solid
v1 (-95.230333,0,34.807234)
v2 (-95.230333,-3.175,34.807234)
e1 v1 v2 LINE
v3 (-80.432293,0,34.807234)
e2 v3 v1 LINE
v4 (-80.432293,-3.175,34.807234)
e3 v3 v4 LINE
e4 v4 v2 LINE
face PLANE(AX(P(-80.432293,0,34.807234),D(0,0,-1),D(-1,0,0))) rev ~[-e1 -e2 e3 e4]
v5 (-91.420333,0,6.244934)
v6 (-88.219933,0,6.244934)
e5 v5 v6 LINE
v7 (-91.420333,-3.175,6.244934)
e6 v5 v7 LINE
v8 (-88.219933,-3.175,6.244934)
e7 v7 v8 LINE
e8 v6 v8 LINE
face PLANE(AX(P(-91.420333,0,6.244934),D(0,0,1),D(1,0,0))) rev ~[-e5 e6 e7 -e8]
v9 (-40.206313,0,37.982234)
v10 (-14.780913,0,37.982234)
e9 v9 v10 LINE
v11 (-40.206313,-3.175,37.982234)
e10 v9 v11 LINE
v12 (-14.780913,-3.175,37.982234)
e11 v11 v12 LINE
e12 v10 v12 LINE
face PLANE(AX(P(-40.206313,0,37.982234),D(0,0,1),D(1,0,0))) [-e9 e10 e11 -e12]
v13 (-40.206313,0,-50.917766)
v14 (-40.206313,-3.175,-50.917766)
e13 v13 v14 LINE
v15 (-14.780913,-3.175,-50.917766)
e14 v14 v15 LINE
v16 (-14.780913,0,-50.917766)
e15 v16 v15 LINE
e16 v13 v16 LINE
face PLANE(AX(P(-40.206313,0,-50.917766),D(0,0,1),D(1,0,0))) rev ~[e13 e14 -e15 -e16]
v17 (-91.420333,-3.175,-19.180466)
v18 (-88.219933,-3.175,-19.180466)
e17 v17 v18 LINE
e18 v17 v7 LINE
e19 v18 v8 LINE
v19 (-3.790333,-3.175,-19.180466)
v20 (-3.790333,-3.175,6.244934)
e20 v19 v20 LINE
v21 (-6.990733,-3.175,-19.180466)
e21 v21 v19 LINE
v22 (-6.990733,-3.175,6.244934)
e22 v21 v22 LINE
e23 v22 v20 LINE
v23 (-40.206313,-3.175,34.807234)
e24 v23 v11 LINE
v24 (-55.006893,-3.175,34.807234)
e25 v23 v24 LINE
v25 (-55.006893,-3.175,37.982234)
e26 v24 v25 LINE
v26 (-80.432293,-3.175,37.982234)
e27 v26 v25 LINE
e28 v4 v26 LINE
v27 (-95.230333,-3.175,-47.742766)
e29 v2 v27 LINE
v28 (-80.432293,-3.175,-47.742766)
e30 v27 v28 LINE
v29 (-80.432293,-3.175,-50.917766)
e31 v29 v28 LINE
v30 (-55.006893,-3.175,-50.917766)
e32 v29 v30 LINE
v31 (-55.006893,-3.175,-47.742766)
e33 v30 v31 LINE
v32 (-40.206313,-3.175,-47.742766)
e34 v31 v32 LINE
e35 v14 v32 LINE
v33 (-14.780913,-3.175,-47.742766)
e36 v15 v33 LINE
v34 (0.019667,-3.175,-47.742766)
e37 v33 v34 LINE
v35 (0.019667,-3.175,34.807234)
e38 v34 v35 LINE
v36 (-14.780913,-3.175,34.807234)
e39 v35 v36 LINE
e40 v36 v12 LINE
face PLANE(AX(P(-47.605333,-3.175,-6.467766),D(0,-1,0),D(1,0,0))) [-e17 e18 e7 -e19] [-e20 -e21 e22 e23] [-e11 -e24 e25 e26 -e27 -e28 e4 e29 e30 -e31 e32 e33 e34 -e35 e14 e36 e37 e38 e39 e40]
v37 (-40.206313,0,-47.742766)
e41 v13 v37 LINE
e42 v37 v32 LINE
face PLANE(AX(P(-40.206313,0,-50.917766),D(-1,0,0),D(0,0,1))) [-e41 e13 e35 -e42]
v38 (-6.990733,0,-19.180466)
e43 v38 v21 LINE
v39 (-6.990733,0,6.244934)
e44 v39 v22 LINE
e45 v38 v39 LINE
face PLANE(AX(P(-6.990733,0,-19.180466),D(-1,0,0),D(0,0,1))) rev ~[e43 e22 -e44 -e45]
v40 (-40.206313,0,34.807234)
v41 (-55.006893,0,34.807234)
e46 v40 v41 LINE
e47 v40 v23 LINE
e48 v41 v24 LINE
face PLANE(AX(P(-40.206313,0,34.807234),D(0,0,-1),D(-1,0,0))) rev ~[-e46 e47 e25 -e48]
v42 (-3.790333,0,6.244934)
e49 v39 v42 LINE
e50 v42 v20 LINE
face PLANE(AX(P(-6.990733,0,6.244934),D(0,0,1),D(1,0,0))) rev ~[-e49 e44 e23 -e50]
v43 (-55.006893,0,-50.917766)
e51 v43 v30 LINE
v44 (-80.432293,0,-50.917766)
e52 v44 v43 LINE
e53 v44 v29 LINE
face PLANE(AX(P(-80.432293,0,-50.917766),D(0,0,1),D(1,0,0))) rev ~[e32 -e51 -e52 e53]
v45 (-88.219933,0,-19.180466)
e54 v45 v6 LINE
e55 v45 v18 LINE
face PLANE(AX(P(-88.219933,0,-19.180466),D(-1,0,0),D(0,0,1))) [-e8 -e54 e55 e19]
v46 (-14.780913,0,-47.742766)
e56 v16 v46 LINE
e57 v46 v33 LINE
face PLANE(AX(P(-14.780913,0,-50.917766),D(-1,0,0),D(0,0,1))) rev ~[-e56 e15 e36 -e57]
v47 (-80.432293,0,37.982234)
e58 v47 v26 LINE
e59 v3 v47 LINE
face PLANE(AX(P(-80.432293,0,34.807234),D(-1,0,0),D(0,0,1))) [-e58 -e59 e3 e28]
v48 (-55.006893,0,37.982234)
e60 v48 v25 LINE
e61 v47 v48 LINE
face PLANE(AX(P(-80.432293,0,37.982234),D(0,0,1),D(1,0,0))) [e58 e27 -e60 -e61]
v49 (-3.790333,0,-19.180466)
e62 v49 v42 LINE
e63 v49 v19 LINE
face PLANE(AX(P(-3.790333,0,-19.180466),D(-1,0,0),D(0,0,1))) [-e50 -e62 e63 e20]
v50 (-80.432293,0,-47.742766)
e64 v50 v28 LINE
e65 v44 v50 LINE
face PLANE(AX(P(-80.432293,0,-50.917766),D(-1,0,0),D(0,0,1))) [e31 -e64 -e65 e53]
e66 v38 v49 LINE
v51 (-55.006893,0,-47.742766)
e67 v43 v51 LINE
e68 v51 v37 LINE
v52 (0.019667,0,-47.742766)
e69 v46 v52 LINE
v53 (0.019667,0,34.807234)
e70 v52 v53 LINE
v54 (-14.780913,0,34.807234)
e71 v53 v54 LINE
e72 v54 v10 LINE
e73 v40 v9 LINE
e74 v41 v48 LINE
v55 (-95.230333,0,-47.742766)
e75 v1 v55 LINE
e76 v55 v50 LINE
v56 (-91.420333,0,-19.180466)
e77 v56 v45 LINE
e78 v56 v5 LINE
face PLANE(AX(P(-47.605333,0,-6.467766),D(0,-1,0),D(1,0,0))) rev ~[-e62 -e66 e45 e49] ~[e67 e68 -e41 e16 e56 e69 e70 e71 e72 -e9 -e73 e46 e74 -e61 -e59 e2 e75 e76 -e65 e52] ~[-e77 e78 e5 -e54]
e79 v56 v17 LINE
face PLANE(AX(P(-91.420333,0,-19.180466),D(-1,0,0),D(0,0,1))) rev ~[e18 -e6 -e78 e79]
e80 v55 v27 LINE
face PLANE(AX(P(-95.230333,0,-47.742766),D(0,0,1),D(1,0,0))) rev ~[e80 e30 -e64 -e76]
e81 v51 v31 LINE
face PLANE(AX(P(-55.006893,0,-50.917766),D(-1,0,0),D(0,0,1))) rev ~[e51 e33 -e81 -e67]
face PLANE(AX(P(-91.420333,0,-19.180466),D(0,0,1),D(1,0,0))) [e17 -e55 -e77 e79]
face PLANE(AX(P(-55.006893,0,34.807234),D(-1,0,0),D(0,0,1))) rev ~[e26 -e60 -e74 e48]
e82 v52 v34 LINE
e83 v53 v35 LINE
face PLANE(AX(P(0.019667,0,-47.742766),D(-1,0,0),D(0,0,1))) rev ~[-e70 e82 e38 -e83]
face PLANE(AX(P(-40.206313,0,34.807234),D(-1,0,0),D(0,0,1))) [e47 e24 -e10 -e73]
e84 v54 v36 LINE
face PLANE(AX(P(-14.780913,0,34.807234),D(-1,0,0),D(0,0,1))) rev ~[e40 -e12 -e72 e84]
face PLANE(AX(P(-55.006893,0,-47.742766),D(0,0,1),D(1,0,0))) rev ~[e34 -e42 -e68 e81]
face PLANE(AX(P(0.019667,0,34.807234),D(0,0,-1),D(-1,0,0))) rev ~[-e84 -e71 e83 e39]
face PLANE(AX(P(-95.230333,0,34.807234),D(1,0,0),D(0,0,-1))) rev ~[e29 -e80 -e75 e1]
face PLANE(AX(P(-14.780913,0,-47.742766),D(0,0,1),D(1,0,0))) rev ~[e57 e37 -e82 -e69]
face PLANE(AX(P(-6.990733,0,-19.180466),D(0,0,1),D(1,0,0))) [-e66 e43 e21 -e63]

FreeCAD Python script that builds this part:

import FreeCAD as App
import Part
import Sketcher
from FreeCAD import Vector
Q = App.Units.Quantity

doc = App.newDocument("Part")
body = doc.addObject("PartDesign::Body", "Body")

# Sketch on XZ plane
sketch1 = body.newObject("Sketcher::SketchObject", "Sketch")
sketch1.AttachmentSupport = (doc.getObject("XZ_Plane"), [""])
sketch1.MapMode = "FlatFace"
sketch1.addGeometry(Part.LineSegment(Vector(-95.2, 34.8, 0), Vector(-95.2, -47.7, 0)), False)
sketch1.addGeometry(Part.LineSegment(Vector(-95.2, -47.7, 0), Vector(-80.4, -47.7, 0)), False)
sketch1.addGeometry(Part.LineSegment(Vector(-80.4, -47.7, 0), Vector(-80.4, -50.9, 0)), False)
sketch1.addGeometry(Part.LineSegment(Vector(-80.4, -50.9, 0), Vector(-55, -50.9, 0)), False)
sketch1.addGeometry(Part.LineSegment(Vector(-55, -50.9, 0), Vector(-55, -47.7, 0)), False)
sketch1.addGeometry(Part.LineSegment(Vector(-55, -47.7, 0), Vector(-40.2, -47.7, 0)), False)
sketch1.addGeometry(Part.LineSegment(Vector(-40.2, -47.7, 0), Vector(-40.2, -50.9, 0)), False)
sketch1.addGeometry(Part.LineSegment(Vector(-40.2, -50.9, 0), Vector(-14.8, -50.9, 0)), False)
sketch1.addGeometry(Part.LineSegment(Vector(-14.8, -50.9, 0), Vector(-14.8, -47.7, 0)), False)
sketch1.addGeometry(Part.LineSegment(Vector(-14.8, -47.7, 0), Vector(0, -47.7, 0)), False)
sketch1.addGeometry(Part.LineSegment(Vector(0, -47.7, 0), Vector(0, 34.8, 0)), False)
sketch1.addGeometry(Part.LineSegment(Vector(0, 34.8, 0), Vector(-14.8, 34.8, 0)), False)
sketch1.addGeometry(Part.LineSegment(Vector(-14.8, 34.8, 0), Vector(-14.8, 38, 0)), False)
sketch1.addGeometry(Part.LineSegment(Vector(-14.8, 38, 0), Vector(-40.2, 38, 0)), False)
sketch1.addGeometry(Part.LineSegment(Vector(-40.2, 38, 0), Vector(-40.2, 34.8, 0)), False)
sketch1.addGeometry(Part.LineSegment(Vector(-40.2, 34.8, 0), Vector(-55, 34.8, 0)), False)
sketch1.addGeometry(Part.LineSegment(Vector(-55, 34.8, 0), Vector(-55, 38, 0)), False)
sketch1.addGeometry(Part.LineSegment(Vector(-55, 38, 0), Vector(-80.4, 38, 0)), False)
sketch1.addGeometry(Part.LineSegment(Vector(-80.4, 38, 0), Vector(-80.4, 34.8, 0)), False)
sketch1.addGeometry(Part.LineSegment(Vector(-80.4, 34.8, 0), Vector(-95.2, 34.8, 0)), False)
sketch1.addGeometry(Part.LineSegment(Vector(-88.2, -19.2, 0), Vector(-91.4, -19.2, 0)), False)
sketch1.addGeometry(Part.LineSegment(Vector(-91.4, -19.2, 0), Vector(-91.4, 6.2, 0)), False)
sketch1.addGeometry(Part.LineSegment(Vector(-91.4, 6.2, 0), Vector(-88.2, 6.2, 0)), False)
sketch1.addGeometry(Part.LineSegment(Vector(-88.2, 6.2, 0), Vector(-88.2, -19.2, 0)), False)
sketch1.addGeometry(Part.LineSegment(Vector(-3.8, -19.2, 0), Vector(-7, -19.2, 0)), False)
sketch1.addGeometry(Part.LineSegment(Vector(-7, -19.2, 0), Vector(-7, 6.2, 0)), False)
sketch1.addGeometry(Part.LineSegment(Vector(-7, 6.2, 0), Vector(-3.8, 6.2, 0)), False)
sketch1.addGeometry(Part.LineSegment(Vector(-3.8, 6.2, 0), Vector(-3.8, -19.2, 0)), False)
sketch1.addConstraint(Sketcher.Constraint("Coincident", 0, 2, 1, 1))
sketch1.addConstraint(Sketcher.Constraint("Coincident", 1, 2, 2, 1))
sketch1.addConstraint(Sketcher.Constraint("Coincident", 2, 2, 3, 1))
sketch1.addConstraint(Sketcher.Constraint("Coincident", 3, 2, 4, 1))
sketch1.addConstraint(Sketcher.Constraint("Coincident", 4, 2, 5, 1))
sketch1.addConstraint(Sketcher.Constraint("Coincident", 5, 2, 6, 1))
sketch1.addConstraint(Sketcher.Constraint("Coincident", 6, 2, 7, 1))
sketch1.addConstraint(Sketcher.Constraint("Coincident", 7, 2, 8, 1))
sketch1.addConstraint(Sketcher.Constraint("Coincident", 8, 2, 9, 1))
sketch1.addConstraint(Sketcher.Constraint("Coincident", 9, 2, 10, 1))
sketch1.addConstraint(Sketcher.Constraint("Coincident", 10, 2, 11, 1))
sketch1.addConstraint(Sketcher.Constraint("Coincident", 11, 2, 12, 1))
sketch1.addConstraint(Sketcher.Constraint("Coincident", 12, 2, 13, 1))
sketch1.addConstraint(Sketcher.Constraint("Coincident", 13, 2, 14, 1))
sketch1.addConstraint(Sketcher.Constraint("Coincident", 14, 2, 15, 1))
sketch1.addConstraint(Sketcher.Constraint("Coincident", 15, 2, 16, 1))
sketch1.addConstraint(Sketcher.Constraint("Coincident", 16, 2, 17, 1))
sketch1.addConstraint(Sketcher.Constraint("Coincident", 17, 2, 18, 1))
sketch1.addConstraint(Sketcher.Constraint("Coincident", 18, 2, 19, 1))
sketch1.addConstraint(Sketcher.Constraint("Coincident", 19, 2, 0, 1))
sketch1.addConstraint(Sketcher.Constraint("Coincident", 20, 2, 21, 1))
sketch1.addConstraint(Sketcher.Constraint("Coincident", 21, 2, 22, 1))
sketch1.addConstraint(Sketcher.Constraint("Coincident", 22, 2, 23, 1))
sketch1.addConstraint(Sketcher.Constraint("Coincident", 23, 2, 20, 1))
sketch1.addConstraint(Sketcher.Constraint("Coincident", 24, 2, 25, 1))
sketch1.addConstraint(Sketcher.Constraint("Coincident", 25, 2, 26, 1))
sketch1.addConstraint(Sketcher.Constraint("Coincident", 26, 2, 27, 1))
sketch1.addConstraint(Sketcher.Constraint("Coincident", 27, 2, 24, 1))
sketch1.addConstraint(Sketcher.Constraint("Vertical", 0))
sketch1.addConstraint(Sketcher.Constraint("Horizontal", 1))
sketch1.addConstraint(Sketcher.Constraint("Vertical", 2))
sketch1.addConstraint(Sketcher.Constraint("Horizontal", 3))
sketch1.addConstraint(Sketcher.Constraint("Vertical", 4))
sketch1.addConstraint(Sketcher.Constraint("Horizontal", 5))
sketch1.addConstraint(Sketcher.Constraint("Vertical", 6))
sketch1.addConstraint(Sketcher.Constraint("Horizontal", 7))
sketch1.addConstraint(Sketcher.Constraint("Vertical", 8))
sketch1.addConstraint(Sketcher.Constraint("Horizontal", 9))
sketch1.addConstraint(Sketcher.Constraint("Vertical", 10))
sketch1.addConstraint(Sketcher.Constraint("Horizontal", 11))
sketch1.addConstraint(Sketcher.Constraint("Vertical", 12))
sketch1.addConstraint(Sketcher.Constraint("Horizontal", 13))
sketch1.addConstraint(Sketcher.Constraint("Vertical", 14))
sketch1.addConstraint(Sketcher.Constraint("Horizontal", 15))
sketch1.addConstraint(Sketcher.Constraint("Vertical", 16))
sketch1.addConstraint(Sketcher.Constraint("Horizontal", 17))
sketch1.addConstraint(Sketcher.Constraint("Vertical", 18))
sketch1.addConstraint(Sketcher.Constraint("Horizontal", 19))
sketch1.addConstraint(Sketcher.Constraint("Horizontal", 20))
sketch1.addConstraint(Sketcher.Constraint("Vertical", 21))
sketch1.addConstraint(Sketcher.Constraint("Horizontal", 22))
sketch1.addConstraint(Sketcher.Constraint("Vertical", 23))
sketch1.addConstraint(Sketcher.Constraint("Horizontal", 24))
sketch1.addConstraint(Sketcher.Constraint("Vertical", 25))
sketch1.addConstraint(Sketcher.Constraint("Horizontal", 26))
sketch1.addConstraint(Sketcher.Constraint("Vertical", 27))
sketch1.addConstraint(Sketcher.Constraint("Horizontal", 1, 2, 4, 2))
sketch1.addConstraint(Sketcher.Constraint("Horizontal", 3, 2, 6, 2))
sketch1.addConstraint(Sketcher.Constraint("Horizontal", 5, 2, 8, 2))
sketch1.addConstraint(Sketcher.Constraint("Horizontal", 11, 2, 14, 2))
sketch1.addConstraint(Sketcher.Constraint("Horizontal", 13, 2, 16, 2))
sketch1.addConstraint(Sketcher.Constraint("Horizontal", 15, 2, 18, 2))
sketch1.addConstraint(Sketcher.Constraint("Horizontal", 23, 2, 24, 2))
sketch1.addConstraint(Sketcher.Constraint("Horizontal", 22, 2, 25, 2))
sketch1.addConstraint(Sketcher.Constraint("Vertical", 8, 2, 11, 2))
sketch1.addConstraint(Sketcher.Constraint("Vertical", 6, 2, 13, 2))
sketch1.addConstraint(Sketcher.Constraint("Vertical", 4, 2, 15, 2))
sketch1.addConstraint(Sketcher.Constraint("Vertical", 2, 2, 17, 2))
sketch1.addConstraint(Sketcher.Constraint("Equal", 3, 7))
sketch1.addConstraint(Sketcher.Constraint("Equal", 5, 9))
sketch1.addConstraint(Sketcher.Constraint("Equal", 22, 24))
sketch1.addConstraint(Sketcher.Constraint("Equal", 8, 12))
sketch1.addConstraint(Sketcher.Constraint("Equal", 17, 21))
sketch1.addConstraint(Sketcher.Constraint("DistanceY", 0, 2, 0, 1, Q("3.25 in")))
sketch1.addConstraint(Sketcher.Constraint("DistanceY", 7, 2, 12, 2, Q("3.5 in")))
sketch1.addConstraint(Sketcher.Constraint("DistanceX", 3, 1, 3, 2, Q("1.001 in")))
sketch1.addConstraint(Sketcher.Constraint("DistanceX", 20, 2, 20, 1, Q("0.126 in")))
sketch1.addConstraint(Sketcher.Constraint("DistanceX", 0, 2, 20, 2, Q("0.15 in")))
sketch1.addConstraint(Sketcher.Constraint("DistanceX", 26, 2, 10, 2, Q("0.15 in")))
sketch1.addConstraint(Sketcher.Constraint("DistanceX", 1, 1, 1, 2, Q("0.5826 in")))
sketch1.addConstraint(Sketcher.Constraint("DistanceX", 5, 1, 5, 2, Q("0.5827 in")))
sketch1.addConstraint(Sketcher.Constraint("DistanceY", 0, 2, 20, 2, Q("1.1245 in")))
sketch1.addConstraint(Sketcher.Constraint("DistanceX", 0, 2, -1, 1, 95.230333))
sketch1.addConstraint(Sketcher.Constraint("DistanceY", 0, 2, -1, 1, 47.742766))
pad1 = body.newObject("PartDesign::Pad", "Pad")
pad1.Profile = sketch1
pad1.Length = Q("0.125 in")

doc.recompute()
